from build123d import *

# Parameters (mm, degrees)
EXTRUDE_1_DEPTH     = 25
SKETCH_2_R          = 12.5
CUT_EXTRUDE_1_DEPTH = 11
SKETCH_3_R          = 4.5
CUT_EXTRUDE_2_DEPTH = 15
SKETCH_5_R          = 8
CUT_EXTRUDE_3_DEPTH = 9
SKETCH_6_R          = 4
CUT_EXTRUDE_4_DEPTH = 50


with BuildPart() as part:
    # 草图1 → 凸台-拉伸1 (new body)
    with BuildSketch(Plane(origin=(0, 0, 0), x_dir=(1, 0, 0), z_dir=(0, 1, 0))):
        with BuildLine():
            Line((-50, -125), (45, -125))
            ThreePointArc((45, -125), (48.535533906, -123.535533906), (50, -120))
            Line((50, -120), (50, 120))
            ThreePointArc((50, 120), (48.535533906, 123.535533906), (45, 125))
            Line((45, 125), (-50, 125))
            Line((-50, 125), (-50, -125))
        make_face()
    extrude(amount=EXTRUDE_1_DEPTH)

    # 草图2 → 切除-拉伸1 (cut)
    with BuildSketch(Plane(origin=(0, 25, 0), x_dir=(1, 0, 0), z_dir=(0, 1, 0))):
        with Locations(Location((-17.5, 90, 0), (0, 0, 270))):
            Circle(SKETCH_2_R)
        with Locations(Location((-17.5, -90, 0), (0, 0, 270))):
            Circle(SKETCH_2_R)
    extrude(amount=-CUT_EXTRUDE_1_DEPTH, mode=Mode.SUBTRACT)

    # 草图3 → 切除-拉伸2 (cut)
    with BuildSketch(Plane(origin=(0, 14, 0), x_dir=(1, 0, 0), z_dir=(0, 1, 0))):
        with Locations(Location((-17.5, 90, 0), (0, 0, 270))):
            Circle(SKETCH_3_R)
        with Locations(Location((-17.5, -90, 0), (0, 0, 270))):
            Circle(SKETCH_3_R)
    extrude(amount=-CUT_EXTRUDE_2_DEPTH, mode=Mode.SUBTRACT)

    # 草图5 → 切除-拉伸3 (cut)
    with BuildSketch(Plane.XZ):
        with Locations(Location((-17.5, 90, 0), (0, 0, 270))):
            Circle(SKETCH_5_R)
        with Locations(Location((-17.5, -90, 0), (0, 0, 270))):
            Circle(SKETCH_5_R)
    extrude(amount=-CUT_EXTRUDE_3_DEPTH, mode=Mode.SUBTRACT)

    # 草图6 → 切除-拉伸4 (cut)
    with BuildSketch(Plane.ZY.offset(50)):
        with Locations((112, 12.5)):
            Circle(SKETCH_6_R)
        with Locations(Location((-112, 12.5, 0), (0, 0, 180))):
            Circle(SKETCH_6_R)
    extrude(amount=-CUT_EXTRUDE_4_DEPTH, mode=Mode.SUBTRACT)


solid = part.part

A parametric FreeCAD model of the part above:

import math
import FreeCAD as App
import Part
import Sketcher
from FreeCAD import Vector

doc = App.newDocument("Part")
body = doc.addObject("PartDesign::Body", "Body")

# Sketch on XZ plane
sketch1 = body.newObject("Sketcher::SketchObject", "Sketch")
sketch1.AttachmentSupport = (doc.getObject("XZ_Plane"), [""])
sketch1.MapMode = "FlatFace"
sketch1.addGeometry([
    Part.LineSegment(Vector(-50, 125, 0), Vector(45, 125, 0)),  # 0
    Part.ArcOfCircle(Part.Circle(Vector(45, 120, 0), Vector(0, 0, 1), 5), math.radians(0), math.radians(90)),  # 1
    Part.LineSegment(Vector(50, 120, 0), Vector(50, -120, 0)),  # 2
    Part.ArcOfCircle(Part.Circle(Vector(45, -120, 0), Vector(0, 0, 1), 5), math.radians(-90), math.radians(0)),  # 3
    Part.LineSegment(Vector(45, -125, 0), Vector(-50, -125, 0)),  # 4
    Part.LineSegment(Vector(-50, -125, 0), Vector(-50, 125, 0)),  # 5
], False)
sketch1.addConstraint([
    Sketcher.Constraint("Tangent", 0, 2, 1, 2),
    Sketcher.Constraint("Tangent", 1, 1, 2, 1),
    Sketcher.Constraint("Tangent", 2, 2, 3, 2),
    Sketcher.Constraint("Tangent", 3, 1, 4, 1),
    Sketcher.Constraint("Coincident", 4, 2, 5, 1),
    Sketcher.Constraint("Coincident", 5, 2, 0, 1),
    Sketcher.Constraint("Horizontal", 0),
    Sketcher.Constraint("Vertical", 2),
    Sketcher.Constraint("Horizontal", 4),
    Sketcher.Constraint("Vertical", 5),
    Sketcher.Constraint("Equal", 1, 3),
    Sketcher.Constraint("Radius", 1, 5.0),
    Sketcher.Constraint("DistanceX", 0, 1, 0, 2, 95.0),
    Sketcher.Constraint("DistanceY", 2, 2, 2, 1, 240.0),
    Sketcher.Constraint("DistanceX", -1, 1, 1, 3, 45.0),
    Sketcher.Constraint("DistanceY", -1, 1, 1, 3, 120.0),
])
pad1 = body.newObject("PartDesign::Pad", "Pad")
pad1.Profile = sketch1
pad1.Length = 25
pad1.Reversed = True

# Sketch on XZ plane
sketch2 = body.newObject("Sketcher::SketchObject", "Sketch001")
sketch2.AttachmentSupport = (doc.getObject("XZ_Plane"), [""])
sketch2.MapMode = "FlatFace"
sketch2.AttachmentOffset = App.Placement(Vector(0, 0, -25), App.Rotation())
sketch2.addGeometry([
    Part.Circle(Vector(-18, -90, 0), Vector(0, 0, 1), 12),
    Part.Circle(Vector(-18, 90, 0), Vector(0, 0, 1), 12),
], False)
sketch2.addConstraint([
    Sketcher.Constraint("Equal", 0, 1),
    Sketcher.Constraint("Symmetric", 0, 3, 1, 3, -1),
    Sketcher.Constraint("Diameter", 0, 25.0),
    Sketcher.Constraint("DistanceY", 0, 3, -1, 1, 90.0),
    Sketcher.Constraint("DistanceX", 0, 3, -1, 1, 17.5),
])
pocket1 = body.newObject("PartDesign::Pocket", "Pocket")
pocket1.Profile = sketch2
pocket1.Length = 11
pocket1.Reversed = True

# Sketch on XZ plane
sketch3 = body.newObject("Sketcher::SketchObject", "Sketch002")
sketch3.AttachmentSupport = (doc.getObject("XZ_Plane"), [""])
sketch3.MapMode = "FlatFace"
sketch3.AttachmentOffset = App.Placement(Vector(0, 0, -14), App.Rotation())
sketch3.addGeometry([
    Part.Circle(Vector(-17.5, -90, 0), Vector(0, 0, 1), 4.5),
    Part.Circle(Vector(-17.5, 90, 0), Vector(0, 0, 1), 4.5),
], False)
sketch3.addConstraint([
    Sketcher.Constraint("Equal", 0, 1),
    Sketcher.Constraint("Symmetric", 0, 3, 1, 3, -1),
    Sketcher.Constraint("Diameter", 0, 9.0),
    Sketcher.Constraint("DistanceY", 0, 3, -1, 1, 90.0),
    Sketcher.Constraint("DistanceX", 0, 3, -1, 1, 17.5),
])
pocket2 = body.newObject("PartDesign::Pocket", "Pocket001")
pocket2.Profile = sketch3
pocket2.Length = 15
pocket2.Reversed = True

# Sketch on XZ plane
sketch4 = body.newObject("Sketcher::SketchObject", "Sketch003")
sketch4.AttachmentSupport = (doc.getObject("XZ_Plane"), [""])
sketch4.MapMode = "FlatFace"
sketch4.addGeometry([
    Part.Circle(Vector(-18, 90, 0), Vector(0, 0, 1), 8),
    Part.Circle(Vector(-18, -90, 0), Vector(0, 0, 1), 8),
], False)
sketch4.addConstraint([
    Sketcher.Constraint("Equal", 0, 1),
    Sketcher.Constraint("Symmetric", 0, 3, 1, 3, -1),
    Sketcher.Constraint("Diameter", 0, 16.0),
    Sketcher.Constraint("DistanceY", -1, 1, 0, 3, 90.0),
    Sketcher.Constraint("DistanceX", 0, 3, -1, 1, 17.5),
])
pocket3 = body.newObject("PartDesign::Pocket", "Pocket002")
pocket3.Profile = sketch4
pocket3.Length = 9

# Sketch on YZ plane
sketch5 = body.newObject("Sketcher::SketchObject", "Sketch004")
sketch5.AttachmentSupport = (doc.getObject("YZ_Plane"), [""])
sketch5.MapMode = "FlatFace"
sketch5.AttachmentOffset = App.Placement(Vector(0, 0, -50), App.Rotation())
sketch5.addGeometry([
    Part.Circle(Vector(12.5, 112, 0), Vector(0, 0, 1), 4),
    Part.Circle(Vector(12.5, -112, 0), Vector(0, 0, 1), 4),
], False)
sketch5.addConstraint([
    Sketcher.Constraint("Equal", 0, 1),
    Sketcher.Constraint("Symmetric", 0, 3, 1, 3, -1),
    Sketcher.Constraint("Diameter", 0, 8.0),
    Sketcher.Constraint("DistanceY", -1, 1, 0, 3, 112.0),
    Sketcher.Constraint("DistanceX", -1, 1, 0, 3, 12.5),
])
pocket4 = body.newObject("PartDesign::Pocket", "Pocket003")
pocket4.Profile = sketch5
pocket4.Length = 50
pocket4.Reversed = True

doc.recompute()
